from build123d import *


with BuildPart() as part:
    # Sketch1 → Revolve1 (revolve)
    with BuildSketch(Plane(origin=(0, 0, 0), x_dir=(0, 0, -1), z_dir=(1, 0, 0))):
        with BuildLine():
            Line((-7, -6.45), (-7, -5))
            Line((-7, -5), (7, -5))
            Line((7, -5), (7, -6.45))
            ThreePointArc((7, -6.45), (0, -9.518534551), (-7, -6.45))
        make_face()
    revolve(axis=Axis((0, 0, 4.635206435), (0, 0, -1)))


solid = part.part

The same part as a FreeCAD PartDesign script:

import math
import FreeCAD as App
import Part
import Sketcher
from FreeCAD import Vector

doc = App.newDocument("Part")
body = doc.addObject("PartDesign::Body", "Body")

# Sketch on YZ plane
sketch1 = body.newObject("Sketcher::SketchObject", "Sketch")
sketch1.AttachmentSupport = (doc.getObject("YZ_Plane"), [""])
sketch1.MapMode = "FlatFace"
sketch1.addGeometry(Part.LineSegment(Vector(-5, 7, 0), Vector(-6.5, 7, 0)), False)
sketch1.addGeometry(Part.ArcOfCircle(Part.Circle(Vector(0, 0, 0), Vector(0, 0, 1), 9.5), math.radians(133), math.radians(227)), False)
sketch1.addGeometry(Part.LineSegment(Vector(-6.5, -7, 0), Vector(-5, -7, 0)), False)
sketch1.addGeometry(Part.LineSegment(Vector(-5, -7, 0), Vector(-5, 7, 0)), False)
sketch1.addConstraint(Sketcher.Constraint("Coincident", 0, 2, 1, 1))
sketch1.addConstraint(Sketcher.Constraint("Coincident", 1, 2, 2, 1))
sketch1.addConstraint(Sketcher.Constraint("Coincident", 2, 2, 3, 1))
sketch1.addConstraint(Sketcher.Constraint("Coincident", 3, 2, 0, 1))
sketch1.addConstraint(Sketcher.Constraint("Horizontal", 0))
sketch1.addConstraint(Sketcher.Constraint("Horizontal", 2))
sketch1.addConstraint(Sketcher.Constraint("Vertical", 3))
sketch1.addConstraint(Sketcher.Constraint("Coincident", 1, 3, -1, 1))
sketch1.addConstraint(Sketcher.Constraint("Vertical", 0, 2, 1, 2))
sketch1.addConstraint(Sketcher.Constraint("DistanceY", 3, 1, 3, 2, 14.0))
sketch1.addConstraint(Sketcher.Constraint("DistanceX", 2, 2, -1, 1, 5.0))
sketch1.addConstraint(Sketcher.Constraint("DistanceX", 0, 2, 0, 1, 1.45))
revolution = body.newObject("PartDesign::Revolution", "Revolution")
revolution.Profile = sketch1
revolution.ReferenceAxis = (sketch1, ["V_Axis"])
revolution.Angle = 360

doc.recompute()
